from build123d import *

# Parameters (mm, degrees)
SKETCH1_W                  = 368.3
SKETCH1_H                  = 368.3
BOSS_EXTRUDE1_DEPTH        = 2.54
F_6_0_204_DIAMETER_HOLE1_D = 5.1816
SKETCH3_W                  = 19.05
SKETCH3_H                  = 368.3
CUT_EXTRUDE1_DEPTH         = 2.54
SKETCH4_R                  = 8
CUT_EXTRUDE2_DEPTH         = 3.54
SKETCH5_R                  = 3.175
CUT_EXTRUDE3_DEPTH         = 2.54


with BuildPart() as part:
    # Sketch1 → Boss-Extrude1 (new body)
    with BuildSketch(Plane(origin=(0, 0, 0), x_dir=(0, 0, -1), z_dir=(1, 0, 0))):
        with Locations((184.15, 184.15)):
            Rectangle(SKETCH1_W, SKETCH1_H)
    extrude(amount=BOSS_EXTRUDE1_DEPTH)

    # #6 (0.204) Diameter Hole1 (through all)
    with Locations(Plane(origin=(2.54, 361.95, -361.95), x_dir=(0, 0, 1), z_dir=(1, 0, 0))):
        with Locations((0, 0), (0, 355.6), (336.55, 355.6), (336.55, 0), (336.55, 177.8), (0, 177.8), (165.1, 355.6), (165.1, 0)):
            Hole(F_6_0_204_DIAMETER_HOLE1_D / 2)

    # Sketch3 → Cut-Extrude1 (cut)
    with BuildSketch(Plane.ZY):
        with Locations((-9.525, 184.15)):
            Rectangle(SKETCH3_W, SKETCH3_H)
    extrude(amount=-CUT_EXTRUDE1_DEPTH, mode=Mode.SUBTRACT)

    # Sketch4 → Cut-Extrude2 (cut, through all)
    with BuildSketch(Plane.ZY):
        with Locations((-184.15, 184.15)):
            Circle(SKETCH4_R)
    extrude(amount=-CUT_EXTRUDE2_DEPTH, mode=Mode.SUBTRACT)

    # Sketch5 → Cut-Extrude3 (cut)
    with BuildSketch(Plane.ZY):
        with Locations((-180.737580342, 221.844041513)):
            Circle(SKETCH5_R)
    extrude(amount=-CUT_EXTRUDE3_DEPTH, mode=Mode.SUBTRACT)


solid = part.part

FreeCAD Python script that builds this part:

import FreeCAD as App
import Part
import Sketcher
from FreeCAD import Vector
Q = App.Units.Quantity


def add_polygon(sketch, points):
    """Adds a closed chain of lines whose ends are joined by coincident constraints."""
    first, n = sketch.GeometryCount, len(points)
    for a, b in zip(points, points[1:] + points[:1]):
        sketch.addGeometry(Part.LineSegment(App.Vector(*a, 0), App.Vector(*b, 0)), False)
    for i in range(n):
        sketch.addConstraint(Sketcher.Constraint("Coincident", first + i, 2, first + (i + 1) % n, 1))

doc = App.newDocument("Part")
body = doc.addObject("PartDesign::Body", "Body")

# Sketch on YZ plane
sketch1 = doc.addObject("Sketcher::SketchObject", "Sketch")
body.addObject(sketch1)
sketch1.AttachmentSupport = (doc.YZ_Plane, [""])
sketch1.MapMode = "FlatFace"
add_polygon(sketch1, [(368, 0), (0, 0), (0, -368), (368, -368)])  # lines 0-3
sketch1.addConstraint([
    Sketcher.Constraint("Horizontal", 0),
    Sketcher.Constraint("Vertical", 1),
    Sketcher.Constraint("Horizontal", 2),
    Sketcher.Constraint("Vertical", 3),
    Sketcher.Constraint("Coincident", 0, 2, -1, 1),
    Sketcher.Constraint("Equal", 2, 1),
    Sketcher.Constraint("DistanceX", 0, 2, 0, 1, Q("14.5 in")),
])
pad1 = doc.addObject("PartDesign::Pad", "Pad")
body.addObject(pad1)
pad1.Profile = sketch1
pad1.Length = Q("0.1 in")

# Sketch on YZ plane
sketch2 = doc.addObject("Sketcher::SketchObject", "Sketch001")
body.addObject(sketch2)
sketch2.AttachmentSupport = (doc.YZ_Plane, [""])
sketch2.MapMode = "FlatFace"
sketch2.AttachmentOffset = App.Placement(Vector(0, 0, 0.1 * 25.4), App.Rotation())
sketch2.addGeometry([
    Part.Circle(Vector(361.9, -361.9, 0), Vector(0, 0, 1), 2.6),  # 0
    Part.Circle(Vector(6.3, -361.9, 0), Vector(0, 0, 1), 2.6),  # 1
    Part.Circle(Vector(6.3, -25.4, 0), Vector(0, 0, 1), 2.6),  # 2
    Part.Circle(Vector(361.9, -25.4, 0), Vector(0, 0, 1), 2.6),  # 3
    Part.Circle(Vector(184.2, -25.4, 0), Vector(0, 0, 1), 2.6),  # 4
    Part.Circle(Vector(184.2, -361.9, 0), Vector(0, 0, 1), 2.6),  # 5
    Part.Circle(Vector(6.3, -196.8, 0), Vector(0, 0, 1), 2.6),  # 6
    Part.Circle(Vector(361.9, -196.8, 0), Vector(0, 0, 1), 2.6),  # 7
], False)
sketch2.addConstraint([
    Sketcher.Constraint("Equal", 0, 1),
    Sketcher.Constraint("Equal", 1, 2),
    Sketcher.Constraint("Equal", 2, 3),
    Sketcher.Constraint("Equal", 3, 4),
    Sketcher.Constraint("Equal", 4, 5),
    Sketcher.Constraint("Equal", 5, 6),
    Sketcher.Constraint("Equal", 6, 7),
    Sketcher.Constraint("Horizontal", 0, 3, 1, 3),
    Sketcher.Constraint("Horizontal", 2, 3, 3, 3),
    Sketcher.Constraint("Horizontal", 3, 3, 4, 3),
    Sketcher.Constraint("Horizontal", 1, 3, 5, 3),
    Sketcher.Constraint("Horizontal", 6, 3, 7, 3),
    Sketcher.Constraint("Vertical", 1, 3, 2, 3),
    Sketcher.Constraint("Vertical", 0, 3, 3, 3),
    Sketcher.Constraint("Vertical", 4, 3, 5, 3),
    Sketcher.Constraint("Vertical", 2, 3, 6, 3),
    Sketcher.Constraint("Vertical", 3, 3, 7, 3),
    Sketcher.Constraint("Diameter", 0, Q("0.204 in")),
    Sketcher.Constraint("DistanceY", 2, 3, -1, 1, Q("1 in")),
    Sketcher.Constraint("DistanceX", 1, 3, 0, 3, Q("14 in")),
    Sketcher.Constraint("DistanceX", 4, 3, 3, 3, Q("7 in")),
    Sketcher.Constraint("DistanceY", 1, 3, 6, 3, Q("6.5 in")),
    Sketcher.Constraint("DistanceX", -1, 1, 0, 3, Q("14.25 in")),
    Sketcher.Constraint("DistanceY", 0, 3, -1, 1, Q("14.25 in")),
])
doc.recompute()
hole = doc.addObject("PartDesign::Hole", "Hole")
body.addObject(hole)
hole.Profile = sketch2
hole.ThreadType = "None"
hole.Diameter = Q("0.204 in")
hole.DepthType = "ThroughAll"

# Sketch on YZ plane
sketch3 = doc.addObject("Sketcher::SketchObject", "Sketch002")
body.addObject(sketch3)
sketch3.AttachmentSupport = (doc.YZ_Plane, [""])
sketch3.MapMode = "FlatFace"
add_polygon(sketch3, [(368, -19), (0, -19), (0, 0), (368, 0)])  # lines 0-3
sketch3.addConstraint([
    Sketcher.Constraint("Horizontal", 0),
    Sketcher.Constraint("Vertical", 1),
    Sketcher.Constraint("Horizontal", 2),
    Sketcher.Constraint("Vertical", 3),
    Sketcher.Constraint("Coincident", 1, 2, -1, 1),
    Sketcher.Constraint("DistanceX", 0, 2, 0, 1, Q("14.5 in")),
    Sketcher.Constraint("DistanceY", 1, 1, 1, 2, Q("0.75 in")),
])
pocket1 = doc.addObject("PartDesign::Pocket", "Pocket")
body.addObject(pocket1)
pocket1.Profile = sketch3
pocket1.Length = Q("0.1 in")
pocket1.Reversed = True

# Sketch on YZ plane
sketch4 = doc.addObject("Sketcher::SketchObject", "Sketch003")
body.addObject(sketch4)
sketch4.AttachmentSupport = (doc.YZ_Plane, [""])
sketch4.MapMode = "FlatFace"
sketch4.addGeometry(Part.Circle(Vector(184, -184, 0), Vector(0, 0, 1), 8), False)
sketch4.addConstraint([
    Sketcher.Constraint("Diameter", 0, Q("16 mm")),
    Sketcher.Constraint("DistanceX", -1, 1, 0, 3, Q("7.25 in")),
    Sketcher.Constraint("DistanceY", 0, 3, -1, 1, Q("7.25 in")),
])
pocket2 = doc.addObject("PartDesign::Pocket", "Pocket001")
body.addObject(pocket2)
pocket2.Profile = sketch4
pocket2.Type = "ThroughAll"
pocket2.Reversed = True

# Sketch on YZ plane
sketch5 = doc.addObject("Sketcher::SketchObject", "Sketch004")
body.addObject(sketch5)
sketch5.AttachmentSupport = (doc.YZ_Plane, [""])
sketch5.MapMode = "FlatFace"
sketch5.addGeometry(Part.Circle(Vector(221.8, -180.7, 0), Vector(0, 0, 1), 3.2), False)
sketch5.addConstraint([
    Sketcher.Constraint("Diameter", 0, Q("0.25 in")),
    Sketcher.Constraint("DistanceX", -1, 1, 0, 3, Q("221.844042 mm")),
    Sketcher.Constraint("DistanceY", 0, 3, -1, 1, Q("180.73758 mm")),
])
pocket3 = doc.addObject("PartDesign::Pocket", "Pocket002")
body.addObject(pocket3)
pocket3.Profile = sketch5
pocket3.Length = Q("0.1 in")
pocket3.Reversed = True

doc.recompute()
